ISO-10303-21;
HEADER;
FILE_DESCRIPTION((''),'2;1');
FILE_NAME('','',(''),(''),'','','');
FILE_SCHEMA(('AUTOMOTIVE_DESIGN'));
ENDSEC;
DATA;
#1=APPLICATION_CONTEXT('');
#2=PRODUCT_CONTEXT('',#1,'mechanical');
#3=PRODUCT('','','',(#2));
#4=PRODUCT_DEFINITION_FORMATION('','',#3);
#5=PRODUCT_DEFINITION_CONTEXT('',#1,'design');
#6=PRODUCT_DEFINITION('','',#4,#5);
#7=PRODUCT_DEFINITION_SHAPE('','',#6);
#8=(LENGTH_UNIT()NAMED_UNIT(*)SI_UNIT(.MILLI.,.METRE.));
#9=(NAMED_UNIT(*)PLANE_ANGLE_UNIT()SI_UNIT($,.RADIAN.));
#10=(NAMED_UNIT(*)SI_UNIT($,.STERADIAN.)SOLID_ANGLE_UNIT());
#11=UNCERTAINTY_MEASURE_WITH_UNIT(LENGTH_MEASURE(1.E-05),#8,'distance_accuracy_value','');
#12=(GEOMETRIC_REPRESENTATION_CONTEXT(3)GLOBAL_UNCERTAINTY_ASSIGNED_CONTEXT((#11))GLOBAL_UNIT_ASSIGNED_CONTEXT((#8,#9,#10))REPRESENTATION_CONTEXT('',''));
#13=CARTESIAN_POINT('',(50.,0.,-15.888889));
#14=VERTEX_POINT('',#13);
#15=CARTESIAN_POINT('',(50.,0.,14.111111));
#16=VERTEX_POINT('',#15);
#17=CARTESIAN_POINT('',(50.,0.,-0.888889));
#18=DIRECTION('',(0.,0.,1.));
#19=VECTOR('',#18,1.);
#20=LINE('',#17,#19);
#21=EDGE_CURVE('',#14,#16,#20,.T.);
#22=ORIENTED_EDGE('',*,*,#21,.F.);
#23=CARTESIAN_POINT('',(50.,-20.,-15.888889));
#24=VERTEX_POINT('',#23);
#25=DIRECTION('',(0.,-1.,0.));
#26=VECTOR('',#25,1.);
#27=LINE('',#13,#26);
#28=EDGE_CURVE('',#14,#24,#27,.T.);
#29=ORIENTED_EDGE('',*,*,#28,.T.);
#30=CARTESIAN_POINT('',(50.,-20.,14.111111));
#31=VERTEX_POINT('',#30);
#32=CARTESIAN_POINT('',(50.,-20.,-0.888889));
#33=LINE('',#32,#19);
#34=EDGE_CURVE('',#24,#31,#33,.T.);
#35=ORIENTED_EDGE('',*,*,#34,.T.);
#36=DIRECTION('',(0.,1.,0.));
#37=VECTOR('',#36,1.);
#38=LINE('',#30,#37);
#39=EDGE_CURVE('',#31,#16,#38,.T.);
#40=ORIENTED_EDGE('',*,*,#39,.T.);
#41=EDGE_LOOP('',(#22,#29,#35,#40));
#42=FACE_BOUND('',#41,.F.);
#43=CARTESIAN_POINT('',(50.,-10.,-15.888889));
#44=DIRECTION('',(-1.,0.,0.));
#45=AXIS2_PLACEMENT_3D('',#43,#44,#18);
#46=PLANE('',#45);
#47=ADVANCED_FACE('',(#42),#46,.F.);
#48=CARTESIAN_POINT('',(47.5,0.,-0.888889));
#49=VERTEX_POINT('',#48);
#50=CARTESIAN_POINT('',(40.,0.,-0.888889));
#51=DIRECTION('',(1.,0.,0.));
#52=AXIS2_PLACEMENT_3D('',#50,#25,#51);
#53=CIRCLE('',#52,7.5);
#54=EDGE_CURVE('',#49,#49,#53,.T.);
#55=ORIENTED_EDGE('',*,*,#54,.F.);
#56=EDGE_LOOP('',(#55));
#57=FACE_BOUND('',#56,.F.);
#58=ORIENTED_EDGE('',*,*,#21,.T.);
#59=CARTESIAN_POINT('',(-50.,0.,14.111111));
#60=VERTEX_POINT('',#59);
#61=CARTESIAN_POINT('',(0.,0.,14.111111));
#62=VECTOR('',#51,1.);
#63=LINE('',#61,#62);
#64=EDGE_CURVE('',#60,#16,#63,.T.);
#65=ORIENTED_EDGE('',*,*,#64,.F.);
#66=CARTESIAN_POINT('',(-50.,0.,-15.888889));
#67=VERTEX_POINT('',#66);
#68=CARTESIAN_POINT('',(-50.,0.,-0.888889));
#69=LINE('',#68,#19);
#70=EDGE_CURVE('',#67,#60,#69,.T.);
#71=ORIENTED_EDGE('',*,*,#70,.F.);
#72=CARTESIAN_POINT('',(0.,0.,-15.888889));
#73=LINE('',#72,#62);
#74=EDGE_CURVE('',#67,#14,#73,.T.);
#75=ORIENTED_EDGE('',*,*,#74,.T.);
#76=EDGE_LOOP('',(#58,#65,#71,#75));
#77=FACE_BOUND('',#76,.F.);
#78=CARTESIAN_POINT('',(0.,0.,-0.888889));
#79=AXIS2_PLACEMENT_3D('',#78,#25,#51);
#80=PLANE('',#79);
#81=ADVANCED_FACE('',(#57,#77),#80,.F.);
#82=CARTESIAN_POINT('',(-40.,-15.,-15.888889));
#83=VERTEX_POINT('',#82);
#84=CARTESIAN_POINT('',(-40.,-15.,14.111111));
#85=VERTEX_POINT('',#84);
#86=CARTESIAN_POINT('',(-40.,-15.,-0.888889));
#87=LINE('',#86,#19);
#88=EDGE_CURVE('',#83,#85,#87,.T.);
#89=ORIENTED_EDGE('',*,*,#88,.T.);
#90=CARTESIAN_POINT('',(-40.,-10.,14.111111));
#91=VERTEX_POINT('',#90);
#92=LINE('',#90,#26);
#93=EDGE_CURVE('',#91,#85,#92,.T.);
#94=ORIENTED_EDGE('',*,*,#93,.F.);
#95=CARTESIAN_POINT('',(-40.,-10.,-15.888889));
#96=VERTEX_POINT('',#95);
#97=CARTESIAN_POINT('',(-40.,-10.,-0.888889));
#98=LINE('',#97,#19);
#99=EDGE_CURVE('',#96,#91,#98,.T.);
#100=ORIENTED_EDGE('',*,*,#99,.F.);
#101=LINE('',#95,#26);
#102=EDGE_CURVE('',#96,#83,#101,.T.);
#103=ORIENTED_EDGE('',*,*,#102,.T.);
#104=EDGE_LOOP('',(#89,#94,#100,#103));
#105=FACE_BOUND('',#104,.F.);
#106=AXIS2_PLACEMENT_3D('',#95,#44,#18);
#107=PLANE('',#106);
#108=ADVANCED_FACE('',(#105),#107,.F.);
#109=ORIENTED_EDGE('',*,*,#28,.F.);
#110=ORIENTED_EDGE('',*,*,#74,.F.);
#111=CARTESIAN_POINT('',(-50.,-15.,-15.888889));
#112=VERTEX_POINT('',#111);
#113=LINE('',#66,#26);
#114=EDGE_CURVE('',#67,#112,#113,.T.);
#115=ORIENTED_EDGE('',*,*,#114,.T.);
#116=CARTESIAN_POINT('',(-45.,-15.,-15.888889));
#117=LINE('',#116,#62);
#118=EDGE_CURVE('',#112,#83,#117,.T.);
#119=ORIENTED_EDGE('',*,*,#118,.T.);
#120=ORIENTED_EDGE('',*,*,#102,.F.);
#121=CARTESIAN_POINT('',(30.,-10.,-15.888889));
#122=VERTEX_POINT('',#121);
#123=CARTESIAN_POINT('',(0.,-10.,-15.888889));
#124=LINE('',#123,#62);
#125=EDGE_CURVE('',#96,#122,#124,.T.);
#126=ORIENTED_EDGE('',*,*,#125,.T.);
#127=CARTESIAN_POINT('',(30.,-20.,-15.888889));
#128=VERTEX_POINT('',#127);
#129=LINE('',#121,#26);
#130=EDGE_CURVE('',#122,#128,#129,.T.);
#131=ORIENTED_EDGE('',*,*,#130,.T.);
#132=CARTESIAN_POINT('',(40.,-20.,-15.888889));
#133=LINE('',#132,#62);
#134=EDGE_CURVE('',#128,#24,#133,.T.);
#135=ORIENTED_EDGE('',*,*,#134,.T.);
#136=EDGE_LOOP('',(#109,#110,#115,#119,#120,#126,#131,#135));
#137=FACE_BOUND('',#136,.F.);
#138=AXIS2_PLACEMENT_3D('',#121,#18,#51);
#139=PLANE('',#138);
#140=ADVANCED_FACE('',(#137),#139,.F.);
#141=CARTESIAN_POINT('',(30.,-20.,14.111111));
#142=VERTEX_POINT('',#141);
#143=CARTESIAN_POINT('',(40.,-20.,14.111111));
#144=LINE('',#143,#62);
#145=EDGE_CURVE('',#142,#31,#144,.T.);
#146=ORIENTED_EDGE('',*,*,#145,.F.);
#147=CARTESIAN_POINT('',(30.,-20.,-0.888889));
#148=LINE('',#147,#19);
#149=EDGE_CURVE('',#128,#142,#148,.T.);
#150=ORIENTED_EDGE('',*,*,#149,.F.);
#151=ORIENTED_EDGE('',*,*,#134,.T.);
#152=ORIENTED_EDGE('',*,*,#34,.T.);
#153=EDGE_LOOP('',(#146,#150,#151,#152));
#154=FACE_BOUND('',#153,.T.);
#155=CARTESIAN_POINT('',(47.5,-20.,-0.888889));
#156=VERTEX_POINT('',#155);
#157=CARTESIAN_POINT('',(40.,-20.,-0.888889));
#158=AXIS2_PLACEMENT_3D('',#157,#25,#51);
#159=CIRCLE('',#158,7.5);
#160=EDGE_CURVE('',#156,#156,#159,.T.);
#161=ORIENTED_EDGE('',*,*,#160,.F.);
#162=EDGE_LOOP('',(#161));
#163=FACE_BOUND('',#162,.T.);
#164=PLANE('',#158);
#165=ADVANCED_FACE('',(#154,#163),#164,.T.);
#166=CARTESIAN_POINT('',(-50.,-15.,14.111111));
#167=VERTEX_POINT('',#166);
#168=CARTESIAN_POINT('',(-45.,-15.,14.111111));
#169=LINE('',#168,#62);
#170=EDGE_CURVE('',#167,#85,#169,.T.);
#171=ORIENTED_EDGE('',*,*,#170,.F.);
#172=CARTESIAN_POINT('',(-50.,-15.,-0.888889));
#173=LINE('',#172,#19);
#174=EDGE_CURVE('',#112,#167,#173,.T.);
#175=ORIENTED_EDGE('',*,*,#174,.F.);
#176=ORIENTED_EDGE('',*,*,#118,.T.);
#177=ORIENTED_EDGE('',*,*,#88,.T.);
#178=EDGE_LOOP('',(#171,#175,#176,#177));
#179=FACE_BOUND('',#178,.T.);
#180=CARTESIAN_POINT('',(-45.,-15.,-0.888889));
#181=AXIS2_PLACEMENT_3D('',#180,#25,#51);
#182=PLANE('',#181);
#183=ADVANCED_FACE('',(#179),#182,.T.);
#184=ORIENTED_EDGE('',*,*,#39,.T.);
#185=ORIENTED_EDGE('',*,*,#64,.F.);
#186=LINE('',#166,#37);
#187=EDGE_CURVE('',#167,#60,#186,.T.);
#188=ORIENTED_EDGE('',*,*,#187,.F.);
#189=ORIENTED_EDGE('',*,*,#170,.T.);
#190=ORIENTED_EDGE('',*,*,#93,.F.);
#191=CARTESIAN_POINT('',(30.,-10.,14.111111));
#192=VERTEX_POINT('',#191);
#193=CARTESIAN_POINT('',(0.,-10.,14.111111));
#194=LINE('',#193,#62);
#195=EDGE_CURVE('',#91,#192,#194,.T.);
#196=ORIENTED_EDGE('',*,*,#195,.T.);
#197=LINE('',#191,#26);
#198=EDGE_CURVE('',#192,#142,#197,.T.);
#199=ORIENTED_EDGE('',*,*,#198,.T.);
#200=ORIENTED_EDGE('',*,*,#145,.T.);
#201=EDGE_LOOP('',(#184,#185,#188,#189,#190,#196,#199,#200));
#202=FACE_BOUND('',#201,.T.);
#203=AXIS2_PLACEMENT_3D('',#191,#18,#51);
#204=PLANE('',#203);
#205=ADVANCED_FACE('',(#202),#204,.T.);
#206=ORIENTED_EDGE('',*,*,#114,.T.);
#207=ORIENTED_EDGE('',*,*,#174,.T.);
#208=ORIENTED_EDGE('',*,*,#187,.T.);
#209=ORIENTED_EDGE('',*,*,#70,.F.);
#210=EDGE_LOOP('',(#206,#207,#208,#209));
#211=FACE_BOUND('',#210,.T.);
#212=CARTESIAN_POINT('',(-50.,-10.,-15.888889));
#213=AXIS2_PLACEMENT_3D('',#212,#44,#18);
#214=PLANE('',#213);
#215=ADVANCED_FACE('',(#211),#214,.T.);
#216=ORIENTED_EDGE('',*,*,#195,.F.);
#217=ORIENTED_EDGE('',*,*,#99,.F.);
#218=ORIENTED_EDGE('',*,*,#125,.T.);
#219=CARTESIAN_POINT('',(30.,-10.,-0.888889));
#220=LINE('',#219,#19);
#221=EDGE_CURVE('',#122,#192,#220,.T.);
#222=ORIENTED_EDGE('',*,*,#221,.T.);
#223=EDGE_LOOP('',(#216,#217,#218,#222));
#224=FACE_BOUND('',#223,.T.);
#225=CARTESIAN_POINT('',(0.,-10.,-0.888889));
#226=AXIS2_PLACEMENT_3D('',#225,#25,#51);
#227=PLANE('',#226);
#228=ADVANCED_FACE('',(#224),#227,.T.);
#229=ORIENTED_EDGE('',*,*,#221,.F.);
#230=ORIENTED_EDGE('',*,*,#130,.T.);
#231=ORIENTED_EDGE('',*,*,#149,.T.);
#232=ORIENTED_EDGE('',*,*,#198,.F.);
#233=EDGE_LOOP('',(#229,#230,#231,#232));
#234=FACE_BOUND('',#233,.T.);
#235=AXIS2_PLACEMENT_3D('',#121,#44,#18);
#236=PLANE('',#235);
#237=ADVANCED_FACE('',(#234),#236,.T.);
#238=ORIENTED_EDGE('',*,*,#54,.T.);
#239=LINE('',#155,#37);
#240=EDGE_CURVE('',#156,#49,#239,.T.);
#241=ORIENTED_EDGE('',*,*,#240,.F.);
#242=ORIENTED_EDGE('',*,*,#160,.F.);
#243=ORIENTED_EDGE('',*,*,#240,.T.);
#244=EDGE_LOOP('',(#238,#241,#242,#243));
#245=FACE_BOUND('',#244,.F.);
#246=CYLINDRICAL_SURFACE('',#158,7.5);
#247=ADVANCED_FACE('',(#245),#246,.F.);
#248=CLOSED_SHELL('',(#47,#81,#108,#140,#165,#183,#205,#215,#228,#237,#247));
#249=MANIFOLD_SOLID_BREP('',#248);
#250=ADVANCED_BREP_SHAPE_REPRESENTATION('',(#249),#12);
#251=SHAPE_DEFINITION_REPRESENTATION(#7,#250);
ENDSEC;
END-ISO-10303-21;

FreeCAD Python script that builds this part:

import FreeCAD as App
import Part
import Sketcher
from FreeCAD import Vector
Q = App.Units.Quantity


def add_polygon(sketch, points):
    """Adds a closed chain of lines whose ends are joined by coincident constraints."""
    first, n = sketch.GeometryCount, len(points)
    for a, b in zip(points, points[1:] + points[:1]):
        sketch.addGeometry(Part.LineSegment(App.Vector(*a, 0), App.Vector(*b, 0)), False)
    for i in range(n):
        sketch.addConstraint(Sketcher.Constraint("Coincident", first + i, 2, first + (i + 1) % n, 1))

doc = App.newDocument("Part")
body = doc.addObject("PartDesign::Body", "Body")

# Sketch on XZ plane
sketch1 = body.newObject("Sketcher::SketchObject", "Sketch")
sketch1.AttachmentSupport = (doc.getObject("XZ_Plane"), [""])
sketch1.MapMode = "FlatFace"
add_polygon(sketch1, [(-50, 14), (-50, -16), (50, -16), (50, 14)])  # lines 0-3
sketch1.addConstraint([
    Sketcher.Constraint("Vertical", 0),
    Sketcher.Constraint("Horizontal", 1),
    Sketcher.Constraint("Vertical", 2),
    Sketcher.Constraint("Horizontal", 3),
    Sketcher.Constraint("DistanceX", 1, 1, 1, 2, Q("100 mm")),
    Sketcher.Constraint("DistanceY", 0, 2, 0, 1, Q("30 mm")),
    Sketcher.Constraint("DistanceX", 0, 2, -1, 1, Q("50 mm")),
    Sketcher.Constraint("DistanceY", 0, 2, -1, 1, Q("15.888889 mm")),
])
pad1 = body.newObject("PartDesign::Pad", "Pad")
pad1.Profile = sketch1
pad1.Length = 10

# Sketch on XZ plane
sketch2 = body.newObject("Sketcher::SketchObject", "Sketch001")
sketch2.AttachmentSupport = (doc.getObject("XZ_Plane"), [""])
sketch2.MapMode = "FlatFace"
sketch2.AttachmentOffset = App.Placement(Vector(0, 0, 10), App.Rotation())
add_polygon(sketch2, [(-50, 14), (-50, -16), (-40, -16), (-40, 14)])  # lines 0-3
sketch2.addConstraint([
    Sketcher.Constraint("Vertical", 0),
    Sketcher.Constraint("Horizontal", 1),
    Sketcher.Constraint("Vertical", 2),
    Sketcher.Constraint("Horizontal", 3),
    Sketcher.Constraint("DistanceX", 1, 1, 1, 2, Q("10 mm")),
    Sketcher.Constraint("DistanceY", 0, 2, 0, 1, Q("30 mm")),
    Sketcher.Constraint("DistanceX", 0, 2, -1, 1, Q("50 mm")),
    Sketcher.Constraint("DistanceY", 0, 2, -1, 1, Q("15.888889 mm")),
])
pad2 = body.newObject("PartDesign::Pad", "Pad001")
pad2.Profile = sketch2
pad2.Length = 5

# Sketch on XZ plane
sketch3 = body.newObject("Sketcher::SketchObject", "Sketch002")
sketch3.AttachmentSupport = (doc.getObject("XZ_Plane"), [""])
sketch3.MapMode = "FlatFace"
sketch3.AttachmentOffset = App.Placement(Vector(0, 0, 10), App.Rotation())
add_polygon(sketch3, [(30, 14), (30, -16), (50, -16), (50, 14)])  # lines 0-3
sketch3.addConstraint([
    Sketcher.Constraint("Vertical", 0),
    Sketcher.Constraint("Horizontal", 1),
    Sketcher.Constraint("Vertical", 2),
    Sketcher.Constraint("Horizontal", 3),
    Sketcher.Constraint("DistanceX", 1, 1, 1, 2, Q("20 mm")),
    Sketcher.Constraint("DistanceY", 0, 2, 0, 1, Q("30 mm")),
    Sketcher.Constraint("DistanceX", -1, 1, 0, 2, Q("30 mm")),
    Sketcher.Constraint("DistanceY", 0, 2, -1, 1, Q("15.888889 mm")),
])
pad3 = body.newObject("PartDesign::Pad", "Pad002")
pad3.Profile = sketch3
pad3.Length = 10

# Sketch on XZ plane
sketch4 = body.newObject("Sketcher::SketchObject", "Sketch003")
sketch4.AttachmentSupport = (doc.getObject("XZ_Plane"), [""])
sketch4.MapMode = "FlatFace"
sketch4.AttachmentOffset = App.Placement(Vector(0, 0, 20), App.Rotation())
sketch4.addGeometry(Part.Circle(Vector(40, -1, 0), Vector(0, 0, 1), 8), False)
sketch4.addConstraint([
    Sketcher.Constraint("Diameter", 0, Q("15 mm")),
    Sketcher.Constraint("DistanceX", -1, 1, 0, 3, Q("40 mm")),
    Sketcher.Constraint("DistanceY", 0, 3, -1, 1, Q("0.888889 mm")),
])
pocket1 = body.newObject("PartDesign::Pocket", "Pocket")
pocket1.Profile = sketch4
pocket1.Type = "ThroughAll"

doc.recompute()
